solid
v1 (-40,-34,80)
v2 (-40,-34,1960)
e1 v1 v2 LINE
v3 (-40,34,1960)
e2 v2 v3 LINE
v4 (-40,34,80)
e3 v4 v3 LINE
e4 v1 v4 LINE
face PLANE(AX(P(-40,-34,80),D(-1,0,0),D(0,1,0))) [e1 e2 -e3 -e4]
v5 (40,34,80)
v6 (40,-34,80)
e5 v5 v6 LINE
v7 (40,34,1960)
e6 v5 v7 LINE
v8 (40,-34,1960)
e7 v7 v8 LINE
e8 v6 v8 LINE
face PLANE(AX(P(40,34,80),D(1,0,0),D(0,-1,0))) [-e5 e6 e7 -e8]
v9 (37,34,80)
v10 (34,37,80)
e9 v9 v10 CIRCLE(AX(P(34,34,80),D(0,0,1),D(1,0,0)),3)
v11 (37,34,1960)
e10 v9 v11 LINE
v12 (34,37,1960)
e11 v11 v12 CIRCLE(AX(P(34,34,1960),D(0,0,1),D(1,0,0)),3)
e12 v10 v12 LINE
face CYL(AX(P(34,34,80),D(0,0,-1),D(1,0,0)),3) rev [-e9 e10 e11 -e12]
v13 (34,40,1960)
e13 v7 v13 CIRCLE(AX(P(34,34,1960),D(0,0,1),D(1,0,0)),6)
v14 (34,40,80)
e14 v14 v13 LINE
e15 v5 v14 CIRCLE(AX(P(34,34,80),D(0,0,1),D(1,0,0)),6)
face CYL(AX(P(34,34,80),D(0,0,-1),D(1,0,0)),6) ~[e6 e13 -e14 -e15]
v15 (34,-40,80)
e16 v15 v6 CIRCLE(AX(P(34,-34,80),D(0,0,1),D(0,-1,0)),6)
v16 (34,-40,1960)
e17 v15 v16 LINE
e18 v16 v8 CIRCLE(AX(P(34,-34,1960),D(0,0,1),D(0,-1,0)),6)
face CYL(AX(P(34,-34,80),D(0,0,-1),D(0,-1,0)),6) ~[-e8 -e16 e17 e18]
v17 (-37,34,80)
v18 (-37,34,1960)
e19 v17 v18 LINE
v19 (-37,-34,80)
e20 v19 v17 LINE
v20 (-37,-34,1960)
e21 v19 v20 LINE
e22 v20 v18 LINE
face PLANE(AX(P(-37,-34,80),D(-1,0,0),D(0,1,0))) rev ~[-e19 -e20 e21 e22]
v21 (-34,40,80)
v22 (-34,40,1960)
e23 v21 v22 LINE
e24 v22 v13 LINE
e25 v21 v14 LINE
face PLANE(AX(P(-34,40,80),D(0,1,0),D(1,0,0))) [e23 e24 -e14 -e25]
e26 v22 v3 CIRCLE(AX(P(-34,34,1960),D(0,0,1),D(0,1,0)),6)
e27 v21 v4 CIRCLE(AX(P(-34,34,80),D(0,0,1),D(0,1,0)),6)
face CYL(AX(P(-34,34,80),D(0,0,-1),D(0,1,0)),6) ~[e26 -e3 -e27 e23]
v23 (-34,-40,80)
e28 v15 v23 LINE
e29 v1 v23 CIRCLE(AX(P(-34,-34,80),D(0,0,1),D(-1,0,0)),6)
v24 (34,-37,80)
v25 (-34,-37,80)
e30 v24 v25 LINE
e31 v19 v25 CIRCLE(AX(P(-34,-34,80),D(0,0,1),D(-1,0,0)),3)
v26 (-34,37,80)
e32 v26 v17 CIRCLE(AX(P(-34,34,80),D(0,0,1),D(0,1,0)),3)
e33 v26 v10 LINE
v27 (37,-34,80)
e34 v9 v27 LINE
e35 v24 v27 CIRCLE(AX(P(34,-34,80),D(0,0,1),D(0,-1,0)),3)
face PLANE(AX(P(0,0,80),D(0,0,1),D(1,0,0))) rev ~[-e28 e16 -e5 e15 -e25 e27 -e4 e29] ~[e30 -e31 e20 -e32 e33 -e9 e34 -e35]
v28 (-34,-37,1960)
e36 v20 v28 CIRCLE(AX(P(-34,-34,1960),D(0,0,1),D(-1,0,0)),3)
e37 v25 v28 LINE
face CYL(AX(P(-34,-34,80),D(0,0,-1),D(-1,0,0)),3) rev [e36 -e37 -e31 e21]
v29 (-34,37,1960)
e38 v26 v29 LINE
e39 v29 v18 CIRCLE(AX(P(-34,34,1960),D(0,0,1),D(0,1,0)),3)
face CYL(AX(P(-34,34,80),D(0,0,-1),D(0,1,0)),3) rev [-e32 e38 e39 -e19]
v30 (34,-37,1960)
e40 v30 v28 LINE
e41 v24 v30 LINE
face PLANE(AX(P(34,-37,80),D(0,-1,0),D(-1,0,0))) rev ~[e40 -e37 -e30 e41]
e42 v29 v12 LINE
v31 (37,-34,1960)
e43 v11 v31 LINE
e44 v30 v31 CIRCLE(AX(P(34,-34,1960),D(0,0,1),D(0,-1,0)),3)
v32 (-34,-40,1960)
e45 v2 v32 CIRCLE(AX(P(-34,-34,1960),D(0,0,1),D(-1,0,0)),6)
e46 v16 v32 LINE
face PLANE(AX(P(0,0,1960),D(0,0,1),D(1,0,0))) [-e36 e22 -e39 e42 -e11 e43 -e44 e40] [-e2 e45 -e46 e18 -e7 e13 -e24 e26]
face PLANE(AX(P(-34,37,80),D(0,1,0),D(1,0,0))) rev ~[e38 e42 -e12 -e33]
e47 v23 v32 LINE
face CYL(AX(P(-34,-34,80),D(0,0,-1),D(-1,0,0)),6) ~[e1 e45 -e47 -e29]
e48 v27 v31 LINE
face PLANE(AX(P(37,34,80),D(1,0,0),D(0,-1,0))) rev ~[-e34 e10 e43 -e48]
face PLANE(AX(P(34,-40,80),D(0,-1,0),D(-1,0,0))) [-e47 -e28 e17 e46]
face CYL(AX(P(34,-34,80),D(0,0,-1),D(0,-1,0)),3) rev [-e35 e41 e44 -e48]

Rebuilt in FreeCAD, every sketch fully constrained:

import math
import FreeCAD as App
import Part
import Sketcher
from FreeCAD import Vector
Q = App.Units.Quantity

doc = App.newDocument("Part")
params = doc.addObject("Spreadsheet::Sheet", "Params")
for row, (alias, value) in enumerate([
    ("sketch1_radius", "6 mm"),
    ("sketch1_radius2", "3 mm"),
    ("pad1_length", "1880 mm"),
], start=1):
    params.set(f"A{row}", alias)
    params.set(f"B{row}", "=" + value)
    params.setAlias(f"B{row}", alias)

body = doc.addObject("PartDesign::Body", "Body")

# Sketch on XY plane
sketch1 = doc.addObject("Sketcher::SketchObject", "Sketch")
body.addObject(sketch1)
sketch1.AttachmentSupport = (doc.XY_Plane, [""])
sketch1.MapMode = "FlatFace"
sketch1.AttachmentOffset = App.Placement(Vector(0, 0, 80), App.Rotation())
sketch1.addGeometry([
    Part.LineSegment(Vector(-40, 34, 0), Vector(-40, -34, 0)),  # 0
    Part.ArcOfCircle(Part.Circle(Vector(-34, -34, 0), Vector(0, 0, 1), 6), math.radians(180), math.radians(270)),  # 1
    Part.LineSegment(Vector(-34, -40, 0), Vector(34, -40, 0)),  # 2
    Part.ArcOfCircle(Part.Circle(Vector(34, -34, 0), Vector(0, 0, 1), 6), math.radians(-90), math.radians(0)),  # 3
    Part.LineSegment(Vector(40, -34, 0), Vector(40, 34, 0)),  # 4
    Part.ArcOfCircle(Part.Circle(Vector(34, 34, 0), Vector(0, 0, 1), 6), math.radians(0), math.radians(90)),  # 5
    Part.LineSegment(Vector(34, 40, 0), Vector(-34, 40, 0)),  # 6
    Part.ArcOfCircle(Part.Circle(Vector(-34, 34, 0), Vector(0, 0, 1), 6), math.radians(90), math.radians(180)),  # 7
    Part.ArcOfCircle(Part.Circle(Vector(-34, 34, 0), Vector(0, 0, 1), 3), math.radians(90), math.radians(180)),  # 8
    Part.LineSegment(Vector(-34, 37, 0), Vector(34, 37, 0)),  # 9
    Part.ArcOfCircle(Part.Circle(Vector(34, 34, 0), Vector(0, 0, 1), 3), math.radians(0), math.radians(90)),  # 10
    Part.LineSegment(Vector(37, 34, 0), Vector(37, -34, 0)),  # 11
    Part.ArcOfCircle(Part.Circle(Vector(34, -34, 0), Vector(0, 0, 1), 3), math.radians(-90), math.radians(0)),  # 12
    Part.LineSegment(Vector(34, -37, 0), Vector(-34, -37, 0)),  # 13
    Part.ArcOfCircle(Part.Circle(Vector(-34, -34, 0), Vector(0, 0, 1), 3), math.radians(180), math.radians(270)),  # 14
    Part.LineSegment(Vector(-37, -34, 0), Vector(-37, 34, 0)),  # 15
], False)
sketch1.addConstraint([
    Sketcher.Constraint("Tangent", 0, 2, 1, 1),
    Sketcher.Constraint("Tangent", 1, 2, 2, 1),
    Sketcher.Constraint("Tangent", 2, 2, 3, 1),
    Sketcher.Constraint("Tangent", 3, 2, 4, 1),
    Sketcher.Constraint("Tangent", 4, 2, 5, 1),
    Sketcher.Constraint("Tangent", 5, 2, 6, 1),
    Sketcher.Constraint("Tangent", 6, 2, 7, 1),
    Sketcher.Constraint("Tangent", 7, 2, 0, 1),
    Sketcher.Constraint("Tangent", 8, 1, 9, 1),
    Sketcher.Constraint("Tangent", 9, 2, 10, 2),
    Sketcher.Constraint("Tangent", 10, 1, 11, 1),
    Sketcher.Constraint("Tangent", 11, 2, 12, 2),
    Sketcher.Constraint("Tangent", 12, 1, 13, 1),
    Sketcher.Constraint("Tangent", 13, 2, 14, 2),
    Sketcher.Constraint("Tangent", 14, 1, 15, 1),
    Sketcher.Constraint("Tangent", 15, 2, 8, 2),
    Sketcher.Constraint("Vertical", 0),
    Sketcher.Constraint("Horizontal", 2),
    Sketcher.Constraint("Vertical", 4),
    Sketcher.Constraint("Horizontal", 6),
    Sketcher.Constraint("Horizontal", 9),
    Sketcher.Constraint("Vertical", 11),
    Sketcher.Constraint("Horizontal", 13),
    Sketcher.Constraint("Vertical", 15),
    Sketcher.Constraint("Coincident", 8, 3, 7, 3),
    Sketcher.Constraint("Coincident", 10, 3, 5, 3),
    Sketcher.Constraint("Coincident", 12, 3, 3, 3),
    Sketcher.Constraint("Equal", 1, 3),
    Sketcher.Constraint("Equal", 3, 5),
    Sketcher.Constraint("Equal", 5, 7),
    Sketcher.Constraint("Equal", 12, 14),
    Sketcher.Constraint("Symmetric", 1, 3, 5, 3, -1, 1),
    Sketcher.Constraint("Equal", 13, 0),
    Sketcher.Constraint("Radius", 1, Q("6 mm")),
    Sketcher.Constraint("Radius", 8, Q("3 mm")),
    Sketcher.Constraint("DistanceX", 0, 2, -1, 1, Q("40 mm")),
])
sketch1.setExpression("Constraints[33]", "Params.sketch1_radius")
sketch1.setExpression("Constraints[34]", "Params.sketch1_radius2")
pad1 = doc.addObject("PartDesign::Pad", "Pad")
body.addObject(pad1)
pad1.Profile = sketch1
pad1.setExpression("Length", "Params.pad1_length")

doc.recompute()
